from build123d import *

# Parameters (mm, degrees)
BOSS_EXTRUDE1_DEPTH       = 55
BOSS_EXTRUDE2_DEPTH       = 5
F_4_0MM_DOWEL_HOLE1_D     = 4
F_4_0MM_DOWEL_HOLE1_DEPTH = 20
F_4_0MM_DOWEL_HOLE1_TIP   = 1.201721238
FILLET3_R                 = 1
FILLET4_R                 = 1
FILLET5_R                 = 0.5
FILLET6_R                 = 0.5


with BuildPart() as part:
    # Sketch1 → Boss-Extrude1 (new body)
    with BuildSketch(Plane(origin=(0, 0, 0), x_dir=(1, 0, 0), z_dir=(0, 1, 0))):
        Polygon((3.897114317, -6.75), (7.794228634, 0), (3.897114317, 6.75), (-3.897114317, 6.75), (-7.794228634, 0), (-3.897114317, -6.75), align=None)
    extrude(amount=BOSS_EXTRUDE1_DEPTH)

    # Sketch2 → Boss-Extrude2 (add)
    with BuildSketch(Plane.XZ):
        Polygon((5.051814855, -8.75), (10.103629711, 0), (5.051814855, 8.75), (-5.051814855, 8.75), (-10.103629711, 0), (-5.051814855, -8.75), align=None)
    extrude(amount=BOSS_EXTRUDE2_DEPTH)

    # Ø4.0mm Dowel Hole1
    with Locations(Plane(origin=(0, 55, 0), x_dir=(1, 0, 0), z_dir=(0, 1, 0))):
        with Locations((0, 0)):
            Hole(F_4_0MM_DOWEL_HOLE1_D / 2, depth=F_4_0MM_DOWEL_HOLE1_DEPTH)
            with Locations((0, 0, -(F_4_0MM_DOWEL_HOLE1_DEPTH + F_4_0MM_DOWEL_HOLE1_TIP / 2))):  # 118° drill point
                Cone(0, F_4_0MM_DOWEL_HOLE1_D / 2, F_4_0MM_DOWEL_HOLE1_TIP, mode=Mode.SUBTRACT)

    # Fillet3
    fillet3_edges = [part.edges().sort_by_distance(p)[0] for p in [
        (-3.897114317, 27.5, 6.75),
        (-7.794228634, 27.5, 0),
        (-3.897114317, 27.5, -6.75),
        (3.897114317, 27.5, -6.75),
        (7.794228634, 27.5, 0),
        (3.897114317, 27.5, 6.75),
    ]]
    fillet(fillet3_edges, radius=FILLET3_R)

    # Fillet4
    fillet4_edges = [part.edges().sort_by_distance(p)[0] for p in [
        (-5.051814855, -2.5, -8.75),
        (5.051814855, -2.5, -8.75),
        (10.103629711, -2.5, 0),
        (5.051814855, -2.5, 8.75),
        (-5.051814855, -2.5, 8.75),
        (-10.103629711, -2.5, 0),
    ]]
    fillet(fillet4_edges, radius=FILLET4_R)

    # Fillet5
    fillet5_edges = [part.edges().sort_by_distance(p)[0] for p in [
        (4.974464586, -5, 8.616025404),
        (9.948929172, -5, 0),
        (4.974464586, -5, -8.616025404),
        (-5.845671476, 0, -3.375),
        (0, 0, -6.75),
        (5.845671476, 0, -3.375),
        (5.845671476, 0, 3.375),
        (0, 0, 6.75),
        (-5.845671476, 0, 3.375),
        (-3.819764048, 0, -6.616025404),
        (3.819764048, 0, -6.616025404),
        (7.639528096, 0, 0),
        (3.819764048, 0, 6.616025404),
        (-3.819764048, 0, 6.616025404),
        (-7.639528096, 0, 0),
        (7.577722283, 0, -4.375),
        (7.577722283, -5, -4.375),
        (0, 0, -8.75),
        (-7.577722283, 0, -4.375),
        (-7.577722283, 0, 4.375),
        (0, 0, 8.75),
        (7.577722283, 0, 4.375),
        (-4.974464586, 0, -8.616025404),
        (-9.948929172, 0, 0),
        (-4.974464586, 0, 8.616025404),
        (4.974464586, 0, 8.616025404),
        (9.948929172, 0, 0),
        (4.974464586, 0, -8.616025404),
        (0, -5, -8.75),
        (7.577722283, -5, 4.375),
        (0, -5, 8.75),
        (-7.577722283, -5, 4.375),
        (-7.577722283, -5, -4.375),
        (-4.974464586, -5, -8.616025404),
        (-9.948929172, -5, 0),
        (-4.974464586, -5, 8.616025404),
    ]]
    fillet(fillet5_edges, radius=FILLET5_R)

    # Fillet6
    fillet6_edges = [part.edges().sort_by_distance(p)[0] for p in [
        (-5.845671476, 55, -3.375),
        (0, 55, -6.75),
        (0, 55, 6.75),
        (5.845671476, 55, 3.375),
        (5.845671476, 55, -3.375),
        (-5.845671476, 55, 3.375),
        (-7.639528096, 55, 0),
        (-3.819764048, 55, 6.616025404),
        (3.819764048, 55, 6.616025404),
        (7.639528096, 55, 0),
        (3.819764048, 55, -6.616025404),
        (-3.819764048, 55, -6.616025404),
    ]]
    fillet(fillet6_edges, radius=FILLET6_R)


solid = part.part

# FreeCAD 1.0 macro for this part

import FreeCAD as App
import Part
import Sketcher
from FreeCAD import Vector
Q = App.Units.Quantity


def edges_at(feature, points):
    """Names of the edges that pass closest to the given points."""
    edges = feature.Shape.Edges
    near = lambda p: min(range(len(edges)), key=lambda i: edges[i].distToShape(Part.Vertex(*p))[0])
    return sorted({f"Edge{near(p) + 1}" for p in points})

doc = App.newDocument("Part")
body = doc.addObject("PartDesign::Body", "Body")

sketch1 = body.newObject("Sketcher::SketchObject", "Sketch")
sketch1.AttachmentSupport = (doc.getObject("XZ_Plane"), [""])
sketch1.MapMode = "FlatFace"
sketch1.addGeometry([
    Part.LineSegment(Vector(4, 7, 0), Vector(8, 0, 0)),
    Part.LineSegment(Vector(8, 0, 0), Vector(4, -7, 0)),
    Part.LineSegment(Vector(4, -7, 0), Vector(-4, -7, 0)),
    Part.LineSegment(Vector(-4, -7, 0), Vector(-8, 0, 0)),
    Part.LineSegment(Vector(-8, 0, 0), Vector(-4, 7, 0)),
    Part.LineSegment(Vector(-4, 7, 0), Vector(4, 7, 0)),
], False)
sketch1.addConstraint([
    Sketcher.Constraint("Coincident", 0, 2, 1, 1),
    Sketcher.Constraint("Coincident", 1, 2, 2, 1),
    Sketcher.Constraint("Coincident", 2, 2, 3, 1),
    Sketcher.Constraint("Coincident", 3, 2, 4, 1),
    Sketcher.Constraint("Coincident", 4, 2, 5, 1),
    Sketcher.Constraint("Coincident", 5, 2, 0, 1),
    Sketcher.Constraint("Horizontal", 2),
    Sketcher.Constraint("Horizontal", 5),
    Sketcher.Constraint("Symmetric", 0, 2, 3, 2, -1, 1),
    Sketcher.Constraint("Symmetric", 1, 2, 4, 2, -1, 1),
    Sketcher.Constraint("PointOnObject", 0, 2, -1),
    Sketcher.Constraint("Parallel", 0, 3),
    Sketcher.Constraint("Vertical", 2, 2, 4, 2),
    Sketcher.Constraint("Angle", 0, Q("-60 deg")),
    Sketcher.Constraint("DistanceY", 2, 2, 4, 2, 13.5),
    Sketcher.Constraint("DistanceX", 2, 2, 2, 1, 7.794229),
])
pad1 = body.newObject("PartDesign::Pad", "Pad")
pad1.Profile = sketch1
pad1.Length = 55
pad1.Reversed = True

sketch2 = body.newObject("Sketcher::SketchObject", "Sketch001")
sketch2.AttachmentSupport = (doc.getObject("XZ_Plane"), [""])
sketch2.MapMode = "FlatFace"
sketch2.addGeometry([
    Part.LineSegment(Vector(5, -9, 0), Vector(10, 0, 0)),
    Part.LineSegment(Vector(10, 0, 0), Vector(5, 9, 0)),
    Part.LineSegment(Vector(5, 9, 0), Vector(-5, 9, 0)),
    Part.LineSegment(Vector(-5, 9, 0), Vector(-10, 0, 0)),
    Part.LineSegment(Vector(-10, 0, 0), Vector(-5, -9, 0)),
    Part.LineSegment(Vector(-5, -9, 0), Vector(5, -9, 0)),
], False)
sketch2.addConstraint([
    Sketcher.Constraint("Coincident", 0, 2, 1, 1),
    Sketcher.Constraint("Coincident", 1, 2, 2, 1),
    Sketcher.Constraint("Coincident", 2, 2, 3, 1),
    Sketcher.Constraint("Coincident", 3, 2, 4, 1),
    Sketcher.Constraint("Coincident", 4, 2, 5, 1),
    Sketcher.Constraint("Coincident", 5, 2, 0, 1),
    Sketcher.Constraint("Horizontal", 2),
    Sketcher.Constraint("Horizontal", 5),
    Sketcher.Constraint("Symmetric", 0, 2, 3, 2, -1, 1),
    Sketcher.Constraint("Symmetric", 1, 2, 4, 2, -1, 1),
    Sketcher.Constraint("PointOnObject", 0, 2, -1),
    Sketcher.Constraint("Parallel", 0, 3),
    Sketcher.Constraint("Vertical", 2, 2, 4, 2),
    Sketcher.Constraint("Angle", 0, Q("60 deg")),
    Sketcher.Constraint("DistanceY", 4, 2, 2, 2, 17.5),
    Sketcher.Constraint("DistanceX", 2, 2, 2, 1, 10.10363),
])
pad2 = body.newObject("PartDesign::Pad", "Pad001")
pad2.Profile = sketch2
pad2.Length = 5

sketch3 = body.newObject("Sketcher::SketchObject", "Sketch002")
sketch3.AttachmentSupport = (doc.getObject("XZ_Plane"), [""])
sketch3.MapMode = "FlatFace"
sketch3.AttachmentOffset = App.Placement(Vector(0, 0, -55), App.Rotation())
sketch3.addGeometry(Part.Circle(Vector(0, 0, 0), Vector(0, 0, 1), 2), False)
sketch3.addConstraint([
    Sketcher.Constraint("Coincident", 0, 3, -1, 1),
    Sketcher.Constraint("Diameter", 0, 4.0),
])
doc.recompute()
hole = body.newObject("PartDesign::Hole", "Hole")
hole.Profile = sketch3
hole.ThreadType = "None"
hole.Diameter = 4
hole.DepthType = "Dimension"
hole.Depth = 20
hole.DrillPoint = "Angled"
hole.DrillPointAngle = 118
hole.Reversed = True
doc.recompute()

fillet = body.newObject("PartDesign::Fillet", "Fillet")
fillet.Base = (hole, edges_at(hole, [
    (-3.897, 27.5, 6.75),
    (-7.794, 27.5, 0),
    (-3.897, 27.5, -6.75),
    (3.897, 27.5, -6.75),
    (7.794, 27.5, 0),
    (3.897, 27.5, 6.75),
]))
fillet.Radius = 1
doc.recompute()

fillet2 = body.newObject("PartDesign::Fillet", "Fillet001")
fillet2.Base = (fillet, edges_at(fillet, [
    (-5.052, -2.5, -8.75),
    (5.052, -2.5, -8.75),
    (10.104, -2.5, 0),
    (5.052, -2.5, 8.75),
    (-5.052, -2.5, 8.75),
    (-10.104, -2.5, 0),
]))
fillet2.Radius = 1
doc.recompute()

fillet3 = body.newObject("PartDesign::Fillet", "Fillet002")
fillet3.Base = (fillet2, edges_at(fillet2, [
    (4.974, -5, 8.616),
    (9.949, -5, 0),
    (4.974, -5, -8.616),
    (-5.846, 0, -3.375),
    (0, 0, -6.75),
    (5.846, 0, -3.375),
    (5.846, 0, 3.375),
    (0, 0, 6.75),
    (-5.846, 0, 3.375),
    (-3.82, 0, -6.616),
    (3.82, 0, -6.616),
    (7.64, 0, 0),
    (3.82, 0, 6.616),
    (-3.82, 0, 6.616),
    (-7.64, 0, 0),
    (7.578, 0, -4.375),
    (7.578, -5, -4.375),
    (0, 0, -8.75),
    (-7.578, 0, -4.375),
    (-7.578, 0, 4.375),
    (0, 0, 8.75),
    (7.578, 0, 4.375),
    (-4.974, 0, -8.616),
    (-9.949, 0, 0),
    (-4.974, 0, 8.616),
    (4.974, 0, 8.616),
    (9.949, 0, 0),
    (4.974, 0, -8.616),
    (0, -5, -8.75),
    (7.578, -5, 4.375),
    (0, -5, 8.75),
    (-7.578, -5, 4.375),
    (-7.578, -5, -4.375),
    (-4.974, -5, -8.616),
    (-9.949, -5, 0),
    (-4.974, -5, 8.616),
]))
fillet3.Radius = 0.5
doc.recompute()

fillet4 = body.newObject("PartDesign::Fillet", "Fillet003")
fillet4.Base = (fillet3, edges_at(fillet3, [
    (-5.846, 55, -3.375),
    (0, 55, -6.75),
    (0, 55, 6.75),
    (5.846, 55, 3.375),
    (5.846, 55, -3.375),
    (-5.846, 55, 3.375),
    (-7.64, 55, 0),
    (-3.82, 55, 6.616),
    (3.82, 55, 6.616),
    (7.64, 55, 0),
    (3.82, 55, -6.616),
    (-3.82, 55, -6.616),
]))
fillet4.Radius = 0.5

doc.recompute()
